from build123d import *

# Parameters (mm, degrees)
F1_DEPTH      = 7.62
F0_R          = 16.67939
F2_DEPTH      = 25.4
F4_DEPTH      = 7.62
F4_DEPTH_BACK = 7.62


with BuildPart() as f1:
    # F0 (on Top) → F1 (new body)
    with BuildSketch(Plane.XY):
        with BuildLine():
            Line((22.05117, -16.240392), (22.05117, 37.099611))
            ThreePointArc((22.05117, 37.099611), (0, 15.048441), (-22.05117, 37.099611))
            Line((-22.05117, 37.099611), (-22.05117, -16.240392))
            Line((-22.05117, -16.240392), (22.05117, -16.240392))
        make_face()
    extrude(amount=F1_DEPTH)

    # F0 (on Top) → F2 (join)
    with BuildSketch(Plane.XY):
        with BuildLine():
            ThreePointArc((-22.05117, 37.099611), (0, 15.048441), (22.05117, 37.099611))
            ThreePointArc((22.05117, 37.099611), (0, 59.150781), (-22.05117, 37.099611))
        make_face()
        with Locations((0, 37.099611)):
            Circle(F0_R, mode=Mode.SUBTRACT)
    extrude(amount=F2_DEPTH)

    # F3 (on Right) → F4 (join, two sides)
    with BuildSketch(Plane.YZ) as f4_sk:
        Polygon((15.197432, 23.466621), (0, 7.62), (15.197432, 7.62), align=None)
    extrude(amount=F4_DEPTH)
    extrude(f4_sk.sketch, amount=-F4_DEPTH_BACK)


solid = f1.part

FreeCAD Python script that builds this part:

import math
import FreeCAD as App
import Part
import Sketcher
Q = App.Units.Quantity


def add_polygon(sketch, points):
    """Adds a closed chain of lines whose ends are joined by coincident constraints."""
    first, n = sketch.GeometryCount, len(points)
    for a, b in zip(points, points[1:] + points[:1]):
        sketch.addGeometry(Part.LineSegment(App.Vector(*a, 0), App.Vector(*b, 0)), False)
    for i in range(n):
        sketch.addConstraint(Sketcher.Constraint("Coincident", first + i, 2, first + (i + 1) % n, 1))

doc = App.newDocument("Part")
body = doc.addObject("PartDesign::Body", "Body")

sketch1 = body.newObject("Sketcher::SketchObject", "Sketch")
sketch1.AttachmentSupport = (doc.getObject("XY_Plane"), [""])
sketch1.MapMode = "FlatFace"
sketch1.addGeometry(Part.LineSegment(App.Vector(22, -16, 0), App.Vector(22, 37, 0)), False)
sketch1.addGeometry(Part.ArcOfCircle(Part.Circle(App.Vector(0, 37, 0), App.Vector(0, 0, 1), 22), math.radians(180), math.radians(360)), False)
sketch1.addGeometry(Part.LineSegment(App.Vector(-22, 37, 0), App.Vector(-22, -16, 0)), False)
sketch1.addGeometry(Part.LineSegment(App.Vector(-22, -16, 0), App.Vector(22, -16, 0)), False)
sketch1.addConstraint(Sketcher.Constraint("Tangent", 0, 2, 1, 2))
sketch1.addConstraint(Sketcher.Constraint("Tangent", 1, 1, 2, 1))
sketch1.addConstraint(Sketcher.Constraint("Coincident", 2, 2, 3, 1))
sketch1.addConstraint(Sketcher.Constraint("Coincident", 3, 2, 0, 1))
sketch1.addConstraint(Sketcher.Constraint("Vertical", 0))
sketch1.addConstraint(Sketcher.Constraint("Vertical", 2))
sketch1.addConstraint(Sketcher.Constraint("Horizontal", 3))
sketch1.addConstraint(Sketcher.Constraint("PointOnObject", 1, 3, -2))
sketch1.addConstraint(Sketcher.Constraint("DistanceY", 0, 1, 0, 2, Q("2.1000001 in")))
sketch1.addConstraint(Sketcher.Constraint("Radius", 1, 22.05117))
sketch1.addConstraint(Sketcher.Constraint("DistanceY", -1, 1, 1, 3, 37.099611))
pad1 = body.newObject("PartDesign::Pad", "Pad")
pad1.Profile = sketch1
pad1.Length = Q("0.3 in")

sketch2 = body.newObject("Sketcher::SketchObject", "Sketch001")
sketch2.AttachmentSupport = (doc.getObject("XY_Plane"), [""])
sketch2.MapMode = "FlatFace"
sketch2.addGeometry(Part.Circle(App.Vector(0, 37, 0), App.Vector(0, 0, 1), 22), False)
sketch2.addGeometry(Part.Circle(App.Vector(0, 37, 0), App.Vector(0, 0, 1), 17), False)
sketch2.addConstraint(Sketcher.Constraint("Coincident", 1, 3, 0, 3))
sketch2.addConstraint(Sketcher.Constraint("PointOnObject", 0, 3, -2))
sketch2.addConstraint(Sketcher.Constraint("Diameter", 0, 44.10234))
sketch2.addConstraint(Sketcher.Constraint("Diameter", 1, 33.35878))
sketch2.addConstraint(Sketcher.Constraint("DistanceY", -1, 1, 0, 3, 37.099611))
pad2 = body.newObject("PartDesign::Pad", "Pad001")
pad2.Profile = sketch2
pad2.Length = Q("1 in")

sketch3 = body.newObject("Sketcher::SketchObject", "Sketch002")
sketch3.AttachmentSupport = (doc.getObject("YZ_Plane"), [""])
sketch3.MapMode = "FlatFace"
add_polygon(sketch3, [(15, 23), (0, 8), (15, 8)])
sketch3.addConstraint(Sketcher.Constraint("Horizontal", 1))
sketch3.addConstraint(Sketcher.Constraint("Vertical", 2))
sketch3.addConstraint(Sketcher.Constraint("PointOnObject", 0, 2, -2))
sketch3.addConstraint(Sketcher.Constraint("DistanceY", -1, 1, 0, 2, Q("0.3 in")))
sketch3.addConstraint(Sketcher.Constraint("DistanceX", 1, 1, 1, 2, 15.197432))
sketch3.addConstraint(Sketcher.Constraint("DistanceY", 2, 1, 2, 2, 15.846621))
pad3 = body.newObject("PartDesign::Pad", "Pad002")
pad3.Profile = sketch3
pad3.Type = "TwoLengths"
pad3.Length = Q("0.3 in")
pad3.Length2 = Q("0.3 in")

doc.recompute()
